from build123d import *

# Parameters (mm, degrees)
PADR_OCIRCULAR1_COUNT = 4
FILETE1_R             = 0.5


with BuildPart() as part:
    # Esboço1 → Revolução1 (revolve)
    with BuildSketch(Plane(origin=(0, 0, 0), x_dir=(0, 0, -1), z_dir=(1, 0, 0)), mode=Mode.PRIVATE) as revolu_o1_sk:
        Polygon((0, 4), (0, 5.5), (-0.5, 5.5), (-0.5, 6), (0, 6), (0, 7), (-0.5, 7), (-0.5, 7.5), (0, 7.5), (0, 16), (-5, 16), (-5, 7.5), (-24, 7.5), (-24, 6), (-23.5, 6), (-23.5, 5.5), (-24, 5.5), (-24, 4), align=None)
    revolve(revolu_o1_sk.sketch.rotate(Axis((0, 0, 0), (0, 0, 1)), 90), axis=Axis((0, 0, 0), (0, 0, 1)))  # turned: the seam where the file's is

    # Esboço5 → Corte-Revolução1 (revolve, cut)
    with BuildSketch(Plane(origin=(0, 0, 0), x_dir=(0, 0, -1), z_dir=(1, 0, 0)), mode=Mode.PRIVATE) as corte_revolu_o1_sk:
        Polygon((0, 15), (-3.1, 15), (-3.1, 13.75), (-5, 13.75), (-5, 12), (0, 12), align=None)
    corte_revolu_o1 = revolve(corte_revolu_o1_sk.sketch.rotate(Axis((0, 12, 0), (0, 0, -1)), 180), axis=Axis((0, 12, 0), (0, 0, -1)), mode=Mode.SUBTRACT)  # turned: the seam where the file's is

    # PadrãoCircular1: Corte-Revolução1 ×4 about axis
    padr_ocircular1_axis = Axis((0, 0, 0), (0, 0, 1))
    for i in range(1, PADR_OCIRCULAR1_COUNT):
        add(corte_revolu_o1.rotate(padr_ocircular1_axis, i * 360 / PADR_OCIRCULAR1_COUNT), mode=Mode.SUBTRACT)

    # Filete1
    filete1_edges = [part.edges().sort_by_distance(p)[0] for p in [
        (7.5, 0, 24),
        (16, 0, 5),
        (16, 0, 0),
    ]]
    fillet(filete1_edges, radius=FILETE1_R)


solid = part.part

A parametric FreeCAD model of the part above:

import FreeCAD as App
import Part
import Sketcher
from FreeCAD import Vector
Q = App.Units.Quantity


def edges_at(feature, points):
    """Names of the edges that pass closest to the given points."""
    edges = feature.Shape.Edges
    near = lambda p: min(range(len(edges)), key=lambda i: edges[i].distToShape(Part.Vertex(*p))[0])
    return sorted({f"Edge{near(p) + 1}" for p in points})

doc = App.newDocument("Part")
params = doc.addObject("Spreadsheet::Sheet", "Params")
for row, (alias, value) in enumerate([
    ("sketch1_width", "1 mm"),
    ("sketch1_height", "5 mm"),
    ("sketch1_height2", "19 mm"),
    ("sketch1_width2", "1.5 mm"),
    ("sketch1_width3", "8.5 mm"),
    ("revolution_angle", "360 deg"),
    ("sketch2_width", "3 mm"),
    ("sketch2_height", "5 mm"),
    ("sketch2_height2", "3.1 mm"),
    ("sketch2_width2", "1.25 mm"),
    ("groove_angle", "360 deg"),
    ("fillet_radius", "0.5 mm"),
], start=1):
    params.set(f"A{row}", alias)
    params.set(f"B{row}", "=" + value)
    params.setAlias(f"B{row}", alias)

body = doc.addObject("PartDesign::Body", "Body")

sketch1 = body.newObject("Sketcher::SketchObject", "Sketch")
sketch1.AttachmentSupport = (doc.getObject("YZ_Plane"), [""])
sketch1.MapMode = "FlatFace"
sketch1.addGeometry(Part.LineSegment(Vector(4, 0, 0), Vector(5.5, 0, 0)), False)
sketch1.addGeometry(Part.LineSegment(Vector(5.5, 0, 0), Vector(5.5, 0.5, 0)), False)
sketch1.addGeometry(Part.LineSegment(Vector(5.5, 0.5, 0), Vector(6, 0.5, 0)), False)
sketch1.addGeometry(Part.LineSegment(Vector(6, 0.5, 0), Vector(6, 0, 0)), False)
sketch1.addGeometry(Part.LineSegment(Vector(6, 0, 0), Vector(7, 0, 0)), False)
sketch1.addGeometry(Part.LineSegment(Vector(7, 0, 0), Vector(7, 0.5, 0)), False)
sketch1.addGeometry(Part.LineSegment(Vector(7, 0.5, 0), Vector(7.5, 0.5, 0)), False)
sketch1.addGeometry(Part.LineSegment(Vector(7.5, 0.5, 0), Vector(7.5, 0, 0)), False)
sketch1.addGeometry(Part.LineSegment(Vector(7.5, 0, 0), Vector(16, 0, 0)), False)
sketch1.addGeometry(Part.LineSegment(Vector(16, 0, 0), Vector(16, 5, 0)), False)
sketch1.addGeometry(Part.LineSegment(Vector(16, 5, 0), Vector(7.5, 5, 0)), False)
sketch1.addGeometry(Part.LineSegment(Vector(7.5, 5, 0), Vector(7.5, 24, 0)), False)
sketch1.addGeometry(Part.LineSegment(Vector(7.5, 24, 0), Vector(6, 24, 0)), False)
sketch1.addGeometry(Part.LineSegment(Vector(6, 24, 0), Vector(6, 23.5, 0)), False)
sketch1.addGeometry(Part.LineSegment(Vector(6, 23.5, 0), Vector(5.5, 23.5, 0)), False)
sketch1.addGeometry(Part.LineSegment(Vector(5.5, 23.5, 0), Vector(5.5, 24, 0)), False)
sketch1.addGeometry(Part.LineSegment(Vector(5.5, 24, 0), Vector(4, 24, 0)), False)
sketch1.addGeometry(Part.LineSegment(Vector(4, 24, 0), Vector(4, 0, 0)), False)
sketch1.addConstraint(Sketcher.Constraint("Coincident", 0, 2, 1, 1))
sketch1.addConstraint(Sketcher.Constraint("Coincident", 1, 2, 2, 1))
sketch1.addConstraint(Sketcher.Constraint("Coincident", 2, 2, 3, 1))
sketch1.addConstraint(Sketcher.Constraint("Coincident", 3, 2, 4, 1))
sketch1.addConstraint(Sketcher.Constraint("Coincident", 4, 2, 5, 1))
sketch1.addConstraint(Sketcher.Constraint("Coincident", 5, 2, 6, 1))
sketch1.addConstraint(Sketcher.Constraint("Coincident", 6, 2, 7, 1))
sketch1.addConstraint(Sketcher.Constraint("Coincident", 7, 2, 8, 1))
sketch1.addConstraint(Sketcher.Constraint("Coincident", 8, 2, 9, 1))
sketch1.addConstraint(Sketcher.Constraint("Coincident", 9, 2, 10, 1))
sketch1.addConstraint(Sketcher.Constraint("Coincident", 10, 2, 11, 1))
sketch1.addConstraint(Sketcher.Constraint("Coincident", 11, 2, 12, 1))
sketch1.addConstraint(Sketcher.Constraint("Coincident", 12, 2, 13, 1))
sketch1.addConstraint(Sketcher.Constraint("Coincident", 13, 2, 14, 1))
sketch1.addConstraint(Sketcher.Constraint("Coincident", 14, 2, 15, 1))
sketch1.addConstraint(Sketcher.Constraint("Coincident", 15, 2, 16, 1))
sketch1.addConstraint(Sketcher.Constraint("Coincident", 16, 2, 17, 1))
sketch1.addConstraint(Sketcher.Constraint("Coincident", 17, 2, 0, 1))
sketch1.addConstraint(Sketcher.Constraint("Horizontal", 0))
sketch1.addConstraint(Sketcher.Constraint("Vertical", 1))
sketch1.addConstraint(Sketcher.Constraint("Horizontal", 2))
sketch1.addConstraint(Sketcher.Constraint("Vertical", 3))
sketch1.addConstraint(Sketcher.Constraint("Horizontal", 4))
sketch1.addConstraint(Sketcher.Constraint("Vertical", 5))
sketch1.addConstraint(Sketcher.Constraint("Horizontal", 6))
sketch1.addConstraint(Sketcher.Constraint("Vertical", 7))
sketch1.addConstraint(Sketcher.Constraint("Horizontal", 8))
sketch1.addConstraint(Sketcher.Constraint("Vertical", 9))
sketch1.addConstraint(Sketcher.Constraint("Horizontal", 10))
sketch1.addConstraint(Sketcher.Constraint("Vertical", 11))
sketch1.addConstraint(Sketcher.Constraint("Horizontal", 12))
sketch1.addConstraint(Sketcher.Constraint("Vertical", 13))
sketch1.addConstraint(Sketcher.Constraint("Horizontal", 14))
sketch1.addConstraint(Sketcher.Constraint("Vertical", 15))
sketch1.addConstraint(Sketcher.Constraint("Horizontal", 16))
sketch1.addConstraint(Sketcher.Constraint("Vertical", 17))
sketch1.addConstraint(Sketcher.Constraint("PointOnObject", 0, 2, -1))
sketch1.addConstraint(Sketcher.Constraint("PointOnObject", 3, 2, -1))
sketch1.addConstraint(Sketcher.Constraint("PointOnObject", 7, 2, -1))
sketch1.addConstraint(Sketcher.Constraint("Horizontal", 2, 2, 5, 2))
sketch1.addConstraint(Sketcher.Constraint("Horizontal", 12, 2, 15, 2))
sketch1.addConstraint(Sketcher.Constraint("Vertical", 7, 2, 10, 2))
sketch1.addConstraint(Sketcher.Constraint("Vertical", 3, 2, 12, 2))
sketch1.addConstraint(Sketcher.Constraint("Vertical", 1, 2, 14, 2))
sketch1.addConstraint(Sketcher.Constraint("Equal", 2, 6))
sketch1.addConstraint(Sketcher.Constraint("Equal", 0, 12))
sketch1.addConstraint(Sketcher.Constraint("Equal", 14, 1))
sketch1.addConstraint(Sketcher.Constraint("Equal", 7, 13))
sketch1.addConstraint(Sketcher.Constraint("DistanceX", 4, 1, 4, 2, Q("1 mm")))
sketch1.addConstraint(Sketcher.Constraint("DistanceY", 9, 1, 9, 2, Q("5 mm")))
sketch1.addConstraint(Sketcher.Constraint("DistanceY", 11, 1, 11, 2, Q("19 mm")))
sketch1.addConstraint(Sketcher.Constraint("DistanceX", 0, 1, 0, 2, Q("1.5 mm")))
sketch1.addConstraint(Sketcher.Constraint("DistanceX", 8, 1, 8, 2, Q("8.5 mm")))
sketch1.addConstraint(Sketcher.Constraint("DistanceX", -1, 1, 2, 2, Q("6 mm")))
sketch1.setExpression("Constraints[48]", "Params.sketch1_width")
sketch1.setExpression("Constraints[49]", "Params.sketch1_height")
sketch1.setExpression("Constraints[50]", "Params.sketch1_height2")
sketch1.setExpression("Constraints[51]", "Params.sketch1_width2")
sketch1.setExpression("Constraints[52]", "Params.sketch1_width3")
revolution = body.newObject("PartDesign::Revolution", "Revolution")
revolution.Profile = sketch1
revolution.ReferenceAxis = (sketch1, ["V_Axis"])
revolution.setExpression("Angle", "Params.revolution_angle")

sketch2 = body.newObject("Sketcher::SketchObject", "Sketch001")
sketch2.AttachmentSupport = (doc.getObject("YZ_Plane"), [""])
sketch2.MapMode = "FlatFace"
sketch2.addGeometry(Part.LineSegment(Vector(15, 0, 0), Vector(15, 3.1, 0)), False)
sketch2.addGeometry(Part.LineSegment(Vector(15, 3.1, 0), Vector(13.75, 3.1, 0)), False)
sketch2.addGeometry(Part.LineSegment(Vector(13.75, 3.1, 0), Vector(13.75, 5, 0)), False)
sketch2.addGeometry(Part.LineSegment(Vector(13.75, 5, 0), Vector(12, 5, 0)), False)
sketch2.addGeometry(Part.LineSegment(Vector(12, 5, 0), Vector(12, 0, 0)), False)
sketch2.addGeometry(Part.LineSegment(Vector(12, 0, 0), Vector(15, 0, 0)), False)
sketch2.addGeometry(Part.LineSegment(Vector(12, 5, 0), Vector(12, 0, 0)), True)
sketch2.addConstraint(Sketcher.Constraint("Coincident", 0, 2, 1, 1))
sketch2.addConstraint(Sketcher.Constraint("Coincident", 1, 2, 2, 1))
sketch2.addConstraint(Sketcher.Constraint("Coincident", 2, 2, 3, 1))
sketch2.addConstraint(Sketcher.Constraint("Coincident", 3, 2, 4, 1))
sketch2.addConstraint(Sketcher.Constraint("Coincident", 4, 2, 5, 1))
sketch2.addConstraint(Sketcher.Constraint("Coincident", 5, 2, 0, 1))
sketch2.addConstraint(Sketcher.Constraint("Vertical", 0))
sketch2.addConstraint(Sketcher.Constraint("Horizontal", 1))
sketch2.addConstraint(Sketcher.Constraint("Vertical", 2))
sketch2.addConstraint(Sketcher.Constraint("Horizontal", 3))
sketch2.addConstraint(Sketcher.Constraint("Vertical", 4))
sketch2.addConstraint(Sketcher.Constraint("Horizontal", 5))
sketch2.addConstraint(Sketcher.Constraint("Vertical", 6))
sketch2.addConstraint(Sketcher.Constraint("Coincident", 6, 1, 3, 2))
sketch2.addConstraint(Sketcher.Constraint("PointOnObject", 4, 2, -1))
sketch2.addConstraint(Sketcher.Constraint("PointOnObject", 6, 2, -1))
sketch2.addConstraint(Sketcher.Constraint("DistanceX", 5, 1, 5, 2, Q("3 mm")))
sketch2.addConstraint(Sketcher.Constraint("DistanceY", 4, 2, 4, 1, Q("5 mm")))
sketch2.addConstraint(Sketcher.Constraint("DistanceY", 0, 1, 0, 2, Q("3.1 mm")))
sketch2.addConstraint(Sketcher.Constraint("DistanceX", -1, 1, 0, 2, Q("15 mm")))
sketch2.addConstraint(Sketcher.Constraint("DistanceX", 1, 2, 1, 1, Q("1.25 mm")))
sketch2.setExpression("Constraints[16]", "Params.sketch2_width")
sketch2.setExpression("Constraints[17]", "Params.sketch2_height")
sketch2.setExpression("Constraints[18]", "Params.sketch2_height2")
sketch2.setExpression("Constraints[20]", "Params.sketch2_width2")
groove = body.newObject("PartDesign::Groove", "Groove")
groove.Profile = sketch2
groove.ReferenceAxis = (sketch2, ["Axis0"])
groove.setExpression("Angle", "Params.groove_angle")
doc.recompute()

polarpattern = body.newObject("PartDesign::PolarPattern", "PolarPattern")
polarpattern.Originals = [groove]
polarpattern.Axis = (doc.getObject("Z_Axis"), [""])
polarpattern.Angle = 360
polarpattern.Occurrences = 4
body.Tip = polarpattern
doc.recompute()

fillet = body.newObject("PartDesign::Fillet", "Fillet")
fillet.Base = (polarpattern, edges_at(polarpattern, [(7.5, 0, 24), (16, 0, 5), (16, 0, 0)]))
fillet.setExpression("Radius", "Params.fillet_radius")

doc.recompute()
